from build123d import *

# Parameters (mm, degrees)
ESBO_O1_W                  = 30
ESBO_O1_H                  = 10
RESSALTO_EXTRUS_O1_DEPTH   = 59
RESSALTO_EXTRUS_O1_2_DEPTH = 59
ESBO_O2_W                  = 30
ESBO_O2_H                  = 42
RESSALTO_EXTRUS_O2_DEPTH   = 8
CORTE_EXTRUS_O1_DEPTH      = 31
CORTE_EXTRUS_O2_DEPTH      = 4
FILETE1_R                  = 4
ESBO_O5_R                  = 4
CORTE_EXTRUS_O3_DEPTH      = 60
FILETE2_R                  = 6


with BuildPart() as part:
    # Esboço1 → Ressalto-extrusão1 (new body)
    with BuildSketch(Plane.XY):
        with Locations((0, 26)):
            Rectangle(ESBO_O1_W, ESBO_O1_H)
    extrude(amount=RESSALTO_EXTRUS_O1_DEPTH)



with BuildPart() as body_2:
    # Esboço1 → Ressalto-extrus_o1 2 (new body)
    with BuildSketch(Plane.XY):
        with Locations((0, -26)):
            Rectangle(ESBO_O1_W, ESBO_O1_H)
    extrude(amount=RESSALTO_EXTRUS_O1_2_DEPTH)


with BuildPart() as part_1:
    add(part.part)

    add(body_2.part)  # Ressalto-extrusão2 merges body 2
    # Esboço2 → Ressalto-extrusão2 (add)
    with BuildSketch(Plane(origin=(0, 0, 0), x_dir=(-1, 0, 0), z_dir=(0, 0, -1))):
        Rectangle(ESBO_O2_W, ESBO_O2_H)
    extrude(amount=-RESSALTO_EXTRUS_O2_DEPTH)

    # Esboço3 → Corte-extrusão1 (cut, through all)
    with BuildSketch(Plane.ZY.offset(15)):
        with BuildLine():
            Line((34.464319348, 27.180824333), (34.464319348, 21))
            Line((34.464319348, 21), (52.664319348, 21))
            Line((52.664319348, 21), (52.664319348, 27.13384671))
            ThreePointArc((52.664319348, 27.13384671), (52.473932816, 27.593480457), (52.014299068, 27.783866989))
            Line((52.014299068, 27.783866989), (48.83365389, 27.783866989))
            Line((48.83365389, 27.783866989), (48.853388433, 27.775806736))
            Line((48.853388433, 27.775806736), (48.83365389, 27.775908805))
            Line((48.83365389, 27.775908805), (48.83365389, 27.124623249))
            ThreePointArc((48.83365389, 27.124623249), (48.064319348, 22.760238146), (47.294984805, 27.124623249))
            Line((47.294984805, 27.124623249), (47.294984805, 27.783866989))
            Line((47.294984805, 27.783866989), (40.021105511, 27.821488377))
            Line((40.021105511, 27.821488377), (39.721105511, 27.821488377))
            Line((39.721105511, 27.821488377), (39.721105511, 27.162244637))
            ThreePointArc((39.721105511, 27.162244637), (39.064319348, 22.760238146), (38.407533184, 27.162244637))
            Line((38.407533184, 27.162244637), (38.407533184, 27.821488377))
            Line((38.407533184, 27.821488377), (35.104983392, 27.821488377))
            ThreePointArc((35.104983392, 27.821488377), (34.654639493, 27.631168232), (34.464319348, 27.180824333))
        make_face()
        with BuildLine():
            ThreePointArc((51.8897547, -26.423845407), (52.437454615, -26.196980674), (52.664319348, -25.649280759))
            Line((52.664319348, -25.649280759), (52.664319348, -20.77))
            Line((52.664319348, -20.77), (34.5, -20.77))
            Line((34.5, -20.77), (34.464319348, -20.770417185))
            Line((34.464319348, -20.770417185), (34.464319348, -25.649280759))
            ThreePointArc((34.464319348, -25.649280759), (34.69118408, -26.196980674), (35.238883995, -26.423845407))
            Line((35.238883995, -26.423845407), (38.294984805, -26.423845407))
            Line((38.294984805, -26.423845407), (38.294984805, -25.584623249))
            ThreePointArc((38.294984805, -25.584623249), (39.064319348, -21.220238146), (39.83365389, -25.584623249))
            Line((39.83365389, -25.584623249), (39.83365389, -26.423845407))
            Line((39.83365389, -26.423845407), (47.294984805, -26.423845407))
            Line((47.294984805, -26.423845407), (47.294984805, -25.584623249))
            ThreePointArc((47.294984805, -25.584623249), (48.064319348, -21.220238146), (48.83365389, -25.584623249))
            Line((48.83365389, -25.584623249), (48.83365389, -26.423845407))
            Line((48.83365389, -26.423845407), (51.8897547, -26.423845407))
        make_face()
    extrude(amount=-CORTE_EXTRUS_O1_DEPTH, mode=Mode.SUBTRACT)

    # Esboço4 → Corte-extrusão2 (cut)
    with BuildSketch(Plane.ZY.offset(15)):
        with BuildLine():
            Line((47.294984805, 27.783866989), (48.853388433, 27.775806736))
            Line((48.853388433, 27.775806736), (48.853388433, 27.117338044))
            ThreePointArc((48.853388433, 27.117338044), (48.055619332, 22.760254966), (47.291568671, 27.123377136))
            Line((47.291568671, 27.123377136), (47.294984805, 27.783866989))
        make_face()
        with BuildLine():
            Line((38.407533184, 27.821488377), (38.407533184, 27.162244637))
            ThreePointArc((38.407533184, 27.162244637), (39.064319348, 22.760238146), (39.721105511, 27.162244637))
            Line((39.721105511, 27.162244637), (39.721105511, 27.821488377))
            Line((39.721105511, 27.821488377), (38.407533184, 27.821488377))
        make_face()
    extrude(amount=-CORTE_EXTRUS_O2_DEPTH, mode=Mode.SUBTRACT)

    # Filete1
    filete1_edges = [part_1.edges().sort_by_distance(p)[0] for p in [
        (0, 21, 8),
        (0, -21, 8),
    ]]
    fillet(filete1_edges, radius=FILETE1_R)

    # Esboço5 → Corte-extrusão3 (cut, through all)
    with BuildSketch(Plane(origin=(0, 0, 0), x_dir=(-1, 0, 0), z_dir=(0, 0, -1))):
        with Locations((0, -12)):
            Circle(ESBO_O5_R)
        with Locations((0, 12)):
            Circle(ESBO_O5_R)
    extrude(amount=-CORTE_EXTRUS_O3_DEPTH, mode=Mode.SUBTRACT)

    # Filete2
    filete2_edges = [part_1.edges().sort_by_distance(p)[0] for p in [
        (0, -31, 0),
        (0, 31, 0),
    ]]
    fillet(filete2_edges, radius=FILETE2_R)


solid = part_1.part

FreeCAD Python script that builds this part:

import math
import FreeCAD as App
import Part
import Sketcher


def edges_at(feature, points):
    """Names of the edges that pass closest to the given points."""
    edges = feature.Shape.Edges
    near = lambda p: min(range(len(edges)), key=lambda i: edges[i].distToShape(Part.Vertex(*p))[0])
    return sorted({f"Edge{near(p) + 1}" for p in points})

doc = App.newDocument("Part")
body = doc.addObject("PartDesign::Body", "Body")

# Sketch on XY plane
sketch1 = body.newObject("Sketcher::SketchObject", "Sketch")
sketch1.AttachmentSupport = (doc.getObject("XY_Plane"), [""])
sketch1.MapMode = "FlatFace"
sketch1.addGeometry(Part.LineSegment(App.Vector(-15, 31, 0), App.Vector(-15, 21, 0)), False)
sketch1.addGeometry(Part.LineSegment(App.Vector(-15, 21, 0), App.Vector(15, 21, 0)), False)
sketch1.addGeometry(Part.LineSegment(App.Vector(15, 21, 0), App.Vector(15, 31, 0)), False)
sketch1.addGeometry(Part.LineSegment(App.Vector(15, 31, 0), App.Vector(-15, 31, 0)), False)
sketch1.addConstraint(Sketcher.Constraint("Coincident", 0, 2, 1, 1))
sketch1.addConstraint(Sketcher.Constraint("Coincident", 1, 2, 2, 1))
sketch1.addConstraint(Sketcher.Constraint("Coincident", 2, 2, 3, 1))
sketch1.addConstraint(Sketcher.Constraint("Coincident", 3, 2, 0, 1))
sketch1.addConstraint(Sketcher.Constraint("Vertical", 0))
sketch1.addConstraint(Sketcher.Constraint("Horizontal", 1))
sketch1.addConstraint(Sketcher.Constraint("Vertical", 2))
sketch1.addConstraint(Sketcher.Constraint("Horizontal", 3))
sketch1.addConstraint(Sketcher.Constraint("DistanceX", 1, 1, 1, 2, 30.0))
sketch1.addConstraint(Sketcher.Constraint("DistanceY", 0, 2, 0, 1, 10.0))
sketch1.addConstraint(Sketcher.Constraint("DistanceX", 0, 2, -1, 1, 15.0))
sketch1.addConstraint(Sketcher.Constraint("DistanceY", -1, 1, 0, 2, 21.0))
pad1 = body.newObject("PartDesign::Pad", "Pad")
pad1.Profile = sketch1
pad1.Length = 59
body2 = doc.addObject("PartDesign::Body", "Body001")

# Sketch on XY plane
sketch2 = body2.newObject("Sketcher::SketchObject", "Sketch001")
sketch2.AttachmentSupport = (doc.getObject("XY_Plane001"), [""])
sketch2.MapMode = "FlatFace"
sketch2.addGeometry(Part.LineSegment(App.Vector(-15, -21, 0), App.Vector(-15, -31, 0)), False)
sketch2.addGeometry(Part.LineSegment(App.Vector(-15, -31, 0), App.Vector(15, -31, 0)), False)
sketch2.addGeometry(Part.LineSegment(App.Vector(15, -31, 0), App.Vector(15, -21, 0)), False)
sketch2.addGeometry(Part.LineSegment(App.Vector(15, -21, 0), App.Vector(-15, -21, 0)), False)
sketch2.addConstraint(Sketcher.Constraint("Coincident", 0, 2, 1, 1))
sketch2.addConstraint(Sketcher.Constraint("Coincident", 1, 2, 2, 1))
sketch2.addConstraint(Sketcher.Constraint("Coincident", 2, 2, 3, 1))
sketch2.addConstraint(Sketcher.Constraint("Coincident", 3, 2, 0, 1))
sketch2.addConstraint(Sketcher.Constraint("Vertical", 0))
sketch2.addConstraint(Sketcher.Constraint("Horizontal", 1))
sketch2.addConstraint(Sketcher.Constraint("Vertical", 2))
sketch2.addConstraint(Sketcher.Constraint("Horizontal", 3))
sketch2.addConstraint(Sketcher.Constraint("DistanceX", 1, 1, 1, 2, 30.0))
sketch2.addConstraint(Sketcher.Constraint("DistanceY", 0, 2, 0, 1, 10.0))
sketch2.addConstraint(Sketcher.Constraint("DistanceX", 0, 2, -1, 1, 15.0))
sketch2.addConstraint(Sketcher.Constraint("DistanceY", 0, 2, -1, 1, 31.0))
pad2 = body2.newObject("PartDesign::Pad", "Pad001")
pad2.Profile = sketch2
pad2.Length = 59
body.AllowCompound = True
doc.recompute()

boolean = body.newObject("PartDesign::Boolean", "Boolean")
boolean.Type = "Fuse"
boolean.addObjects([body2])

# Sketch on XY plane
sketch3 = body.newObject("Sketcher::SketchObject", "Sketch002")
sketch3.AttachmentSupport = (doc.getObject("XY_Plane"), [""])
sketch3.MapMode = "FlatFace"
sketch3.addGeometry(Part.LineSegment(App.Vector(15, 21, 0), App.Vector(15, -21, 0)), False)
sketch3.addGeometry(Part.LineSegment(App.Vector(15, -21, 0), App.Vector(-15, -21, 0)), False)
sketch3.addGeometry(Part.LineSegment(App.Vector(-15, -21, 0), App.Vector(-15, 21, 0)), False)
sketch3.addGeometry(Part.LineSegment(App.Vector(-15, 21, 0), App.Vector(15, 21, 0)), False)
sketch3.addConstraint(Sketcher.Constraint("Coincident", 0, 2, 1, 1))
sketch3.addConstraint(Sketcher.Constraint("Coincident", 1, 2, 2, 1))
sketch3.addConstraint(Sketcher.Constraint("Coincident", 2, 2, 3, 1))
sketch3.addConstraint(Sketcher.Constraint("Coincident", 3, 2, 0, 1))
sketch3.addConstraint(Sketcher.Constraint("Vertical", 0))
sketch3.addConstraint(Sketcher.Constraint("Horizontal", 1))
sketch3.addConstraint(Sketcher.Constraint("Vertical", 2))
sketch3.addConstraint(Sketcher.Constraint("Horizontal", 3))
sketch3.addConstraint(Sketcher.Constraint("Symmetric", 0, 2, 2, 2, -1, 1))
sketch3.addConstraint(Sketcher.Constraint("DistanceX", 1, 2, 1, 1, 30.0))
sketch3.addConstraint(Sketcher.Constraint("DistanceY", 0, 2, 0, 1, 42.0))
pad3 = body.newObject("PartDesign::Pad", "Pad002")
pad3.Profile = sketch3
pad3.Length = 8

# Sketch on YZ plane
sketch4 = body.newObject("Sketcher::SketchObject", "Sketch003")
sketch4.AttachmentSupport = (doc.getObject("YZ_Plane"), [""])
sketch4.MapMode = "FlatFace"
sketch4.AttachmentOffset = App.Placement(App.Vector(0, 0, -15), App.Rotation())
sketch4.addGeometry(Part.LineSegment(App.Vector(27.180824, 34.464319, 0), App.Vector(21, 34.464319, 0)), False)
sketch4.addGeometry(Part.LineSegment(App.Vector(21, 34.464319, 0), App.Vector(21, 52.664319, 0)), False)
sketch4.addGeometry(Part.LineSegment(App.Vector(21, 52.664319, 0), App.Vector(27.133847, 52.664319, 0)), False)
sketch4.addGeometry(Part.ArcOfCircle(Part.Circle(App.Vector(27.133847, 52.014299, 0), App.Vector(0, 0, 1), 0.65002), math.radians(0), math.radians(90)), False)
sketch4.addGeometry(Part.LineSegment(App.Vector(27.783867, 52.014299, 0), App.Vector(27.783867, 48.833654, 0)), False)
sketch4.addGeometry(Part.LineSegment(App.Vector(27.783867, 48.833654, 0), App.Vector(27.775807, 48.853388, 0)), False)
sketch4.addGeometry(Part.LineSegment(App.Vector(27.775807, 48.853388, 0), App.Vector(27.775909, 48.833654, 0)), False)
sketch4.addGeometry(Part.LineSegment(App.Vector(27.775909, 48.833654, 0), App.Vector(27.124623, 48.833654, 0)), False)
sketch4.addGeometry(Part.ArcOfCircle(Part.Circle(App.Vector(25.010238, 48.064319, 0), App.Vector(0, 0, 1), 2.25), math.radians(19.994288), math.radians(340.005712)), False)
sketch4.addGeometry(Part.LineSegment(App.Vector(27.124623, 47.294985, 0), App.Vector(27.783867, 47.294985, 0)), False)
sketch4.addGeometry(Part.LineSegment(App.Vector(27.783867, 47.294985, 0), App.Vector(27.821488, 40.021106, 0)), False)
sketch4.addGeometry(Part.LineSegment(App.Vector(27.821488, 40.021106, 0), App.Vector(27.821488, 39.721106, 0)), False)
sketch4.addGeometry(Part.LineSegment(App.Vector(27.821488, 39.721106, 0), App.Vector(27.162245, 39.721106, 0)), False)
sketch4.addGeometry(Part.ArcOfCircle(Part.Circle(App.Vector(25.010238, 39.064319, 0), App.Vector(0, 0, 1), 2.25), math.radians(16.972038), math.radians(343.027962)), False)
sketch4.addGeometry(Part.LineSegment(App.Vector(27.162245, 38.407533, 0), App.Vector(27.821488, 38.407533, 0)), False)
sketch4.addGeometry(Part.LineSegment(App.Vector(27.821488, 38.407533, 0), App.Vector(27.821488, 35.104983, 0)), False)
sketch4.addGeometry(Part.ArcOfCircle(Part.Circle(App.Vector(27.171534, 35.114273, 0), App.Vector(0, 0, 1), 0.65002), math.radians(-89.181122), math.radians(-0.818878)), False)
sketch4.addGeometry(Part.ArcOfCircle(Part.Circle(App.Vector(-25.649281, 51.889755, 0), App.Vector(0, 0, 1), 0.774565), math.radians(90), math.radians(180)), False)
sketch4.addGeometry(Part.LineSegment(App.Vector(-25.649281, 52.664319, 0), App.Vector(-20.77, 52.664319, 0)), False)
sketch4.addGeometry(Part.LineSegment(App.Vector(-20.77, 52.664319, 0), App.Vector(-20.77, 34.5, 0)), False)
sketch4.addGeometry(Part.LineSegment(App.Vector(-20.77, 34.5, 0), App.Vector(-20.770417, 34.464319, 0)), False)
sketch4.addGeometry(Part.LineSegment(App.Vector(-20.770417, 34.464319, 0), App.Vector(-25.649281, 34.464319, 0)), False)
sketch4.addGeometry(Part.ArcOfCircle(Part.Circle(App.Vector(-25.649281, 35.238884, 0), App.Vector(0, 0, 1), 0.774565), math.radians(180), math.radians(270)), False)
sketch4.addGeometry(Part.LineSegment(App.Vector(-26.423845, 35.238884, 0), App.Vector(-26.423845, 38.294985, 0)), False)
sketch4.addGeometry(Part.LineSegment(App.Vector(-26.423845, 38.294985, 0), App.Vector(-25.584623, 38.294985, 0)), False)
sketch4.addGeometry(Part.ArcOfCircle(Part.Circle(App.Vector(-23.470238, 39.064319, 0), App.Vector(0, 0, 1), 2.25), math.radians(-160.005712), math.radians(160.005712)), False)
sketch4.addGeometry(Part.LineSegment(App.Vector(-25.584623, 39.833654, 0), App.Vector(-26.423845, 39.833654, 0)), False)
sketch4.addGeometry(Part.LineSegment(App.Vector(-26.423845, 39.833654, 0), App.Vector(-26.423845, 47.294985, 0)), False)
sketch4.addGeometry(Part.LineSegment(App.Vector(-26.423845, 47.294985, 0), App.Vector(-25.584623, 47.294985, 0)), False)
sketch4.addGeometry(Part.ArcOfCircle(Part.Circle(App.Vector(-23.470238, 48.064319, 0), App.Vector(0, 0, 1), 2.25), math.radians(-160.005712), math.radians(160.005712)), False)
sketch4.addGeometry(Part.LineSegment(App.Vector(-25.584623, 48.833654, 0), App.Vector(-26.423845, 48.833654, 0)), False)
sketch4.addGeometry(Part.LineSegment(App.Vector(-26.423845, 48.833654, 0), App.Vector(-26.423845, 51.889755, 0)), False)
sketch4.addConstraint(Sketcher.Constraint("Coincident", 0, 2, 1, 1))
sketch4.addConstraint(Sketcher.Constraint("Coincident", 1, 2, 2, 1))
sketch4.addConstraint(Sketcher.Constraint("Tangent", 2, 2, 3, 2))
sketch4.addConstraint(Sketcher.Constraint("Tangent", 3, 1, 4, 1))
sketch4.addConstraint(Sketcher.Constraint("Coincident", 4, 2, 5, 1))
sketch4.addConstraint(Sketcher.Constraint("Coincident", 5, 2, 6, 1))
sketch4.addConstraint(Sketcher.Constraint("Coincident", 6, 2, 7, 1))
sketch4.addConstraint(Sketcher.Constraint("Coincident", 7, 2, 8, 1))
sketch4.addConstraint(Sketcher.Constraint("Coincident", 8, 2, 9, 1))
sketch4.addConstraint(Sketcher.Constraint("Coincident", 9, 2, 10, 1))
sketch4.addConstraint(Sketcher.Constraint("Coincident", 10, 2, 11, 1))
sketch4.addConstraint(Sketcher.Constraint("Coincident", 11, 2, 12, 1))
sketch4.addConstraint(Sketcher.Constraint("Coincident", 12, 2, 13, 1))
sketch4.addConstraint(Sketcher.Constraint("Coincident", 13, 2, 14, 1))
sketch4.addConstraint(Sketcher.Constraint("Coincident", 14, 2, 15, 1))
sketch4.addConstraint(Sketcher.Constraint("Coincident", 15, 2, 16, 2))
sketch4.addConstraint(Sketcher.Constraint("Coincident", 16, 1, 0, 1))
sketch4.addConstraint(Sketcher.Constraint("Tangent", 17, 1, 18, 1))
sketch4.addConstraint(Sketcher.Constraint("Coincident", 18, 2, 19, 1))
sketch4.addConstraint(Sketcher.Constraint("Coincident", 19, 2, 20, 1))
sketch4.addConstraint(Sketcher.Constraint("Coincident", 20, 2, 21, 1))
sketch4.addConstraint(Sketcher.Constraint("Tangent", 21, 2, 22, 2))
sketch4.addConstraint(Sketcher.Constraint("Tangent", 22, 1, 23, 1))
sketch4.addConstraint(Sketcher.Constraint("Coincident", 23, 2, 24, 1))
sketch4.addConstraint(Sketcher.Constraint("Coincident", 24, 2, 25, 1))
sketch4.addConstraint(Sketcher.Constraint("Coincident", 25, 2, 26, 1))
sketch4.addConstraint(Sketcher.Constraint("Coincident", 26, 2, 27, 1))
sketch4.addConstraint(Sketcher.Constraint("Coincident", 27, 2, 28, 1))
sketch4.addConstraint(Sketcher.Constraint("Coincident", 28, 2, 29, 1))
sketch4.addConstraint(Sketcher.Constraint("Coincident", 29, 2, 30, 1))
sketch4.addConstraint(Sketcher.Constraint("Coincident", 30, 2, 31, 1))
sketch4.addConstraint(Sketcher.Constraint("Tangent", 31, 2, 17, 2))
sketch4.addConstraint(Sketcher.Constraint("Horizontal", 0))
sketch4.addConstraint(Sketcher.Constraint("Vertical", 1))
sketch4.addConstraint(Sketcher.Constraint("Horizontal", 2))
sketch4.addConstraint(Sketcher.Constraint("Vertical", 4))
sketch4.addConstraint(Sketcher.Constraint("Horizontal", 7))
sketch4.addConstraint(Sketcher.Constraint("Horizontal", 9))
sketch4.addConstraint(Sketcher.Constraint("Vertical", 11))
sketch4.addConstraint(Sketcher.Constraint("Horizontal", 12))
sketch4.addConstraint(Sketcher.Constraint("Horizontal", 14))
sketch4.addConstraint(Sketcher.Constraint("Vertical", 15))
sketch4.addConstraint(Sketcher.Constraint("Horizontal", 18))
sketch4.addConstraint(Sketcher.Constraint("Vertical", 19))
sketch4.addConstraint(Sketcher.Constraint("Horizontal", 21))
sketch4.addConstraint(Sketcher.Constraint("Vertical", 23))
sketch4.addConstraint(Sketcher.Constraint("Horizontal", 24))
sketch4.addConstraint(Sketcher.Constraint("Horizontal", 26))
sketch4.addConstraint(Sketcher.Constraint("Vertical", 27))
sketch4.addConstraint(Sketcher.Constraint("Horizontal", 28))
sketch4.addConstraint(Sketcher.Constraint("Horizontal", 30))
sketch4.addConstraint(Sketcher.Constraint("Vertical", 31))
sketch4.addConstraint(Sketcher.Constraint("Equal", 8, 13))
sketch4.addConstraint(Sketcher.Constraint("Equal", 3, 16))
sketch4.addConstraint(Sketcher.Constraint("Equal", 17, 22))
sketch4.addConstraint(Sketcher.Constraint("Equal", 13, 25))
sketch4.addConstraint(Sketcher.Constraint("Equal", 25, 29))
sketch4.addConstraint(Sketcher.Constraint("Parallel", 6, 10))
sketch4.addConstraint(Sketcher.Constraint("Horizontal", 13, 3, 25, 3))
sketch4.addConstraint(Sketcher.Constraint("Horizontal", 8, 3, 29, 3))
sketch4.addConstraint(Sketcher.Constraint("Horizontal", 4, 2, 6, 2))
sketch4.addConstraint(Sketcher.Constraint("Horizontal", 2, 2, 17, 1))
sketch4.addConstraint(Sketcher.Constraint("Horizontal", 16, 1, 20, 2))
sketch4.addConstraint(Sketcher.Constraint("Horizontal", 9, 2, 27, 2))
sketch4.addConstraint(Sketcher.Constraint("Horizontal", 7, 2, 29, 2))
sketch4.addConstraint(Sketcher.Constraint("Vertical", 8, 3, 13, 3))
sketch4.addConstraint(Sketcher.Constraint("Vertical", 17, 3, 22, 3))
sketch4.addConstraint(Sketcher.Constraint("Vertical", 25, 3, 29, 3))
sketch4.addConstraint(Sketcher.Constraint("Vertical", 7, 2, 8, 2))
sketch4.addConstraint(Sketcher.Constraint("Vertical", 4, 2, 9, 2))
sketch4.addConstraint(Sketcher.Constraint("Vertical", 12, 2, 13, 2))
sketch4.addConstraint(Sketcher.Constraint("Vertical", 11, 2, 14, 2))
sketch4.addConstraint(Sketcher.Constraint("Vertical", 24, 2, 25, 2))
sketch4.addConstraint(Sketcher.Constraint("Vertical", 23, 2, 26, 2))
sketch4.addConstraint(Sketcher.Constraint("Vertical", 25, 2, 28, 2))
sketch4.addConstraint(Sketcher.Constraint("Equal", 9, 12))
sketch4.addConstraint(Sketcher.Constraint("Equal", 23, 31))
sketch4.addConstraint(Sketcher.Constraint("Radius", 8, 2.25))
sketch4.addConstraint(Sketcher.Constraint("DistanceY", 1, 1, 1, 2, 18.2))
sketch4.addConstraint(Sketcher.Constraint("DistanceY", 11, 2, 11, 1, 0.3))
sketch4.addConstraint(Sketcher.Constraint("DistanceX", -1, 1, 0, 2, 21.0))
sketch4.addConstraint(Sketcher.Constraint("DistanceY", 13, 3, 8, 3, 9.0))
sketch4.addConstraint(Sketcher.Constraint("DistanceY", -1, 1, 19, 2, 34.5))
sketch4.addConstraint(Sketcher.Constraint("DistanceX", 18, 2, -1, 1, 20.77))
sketch4.addConstraint(Sketcher.Constraint("Radius", 3, 0.65002))
sketch4.addConstraint(Sketcher.Constraint("DistanceY", 23, 1, 23, 2, 3.056101))
sketch4.addConstraint(Sketcher.Constraint("Radius", 17, 0.774565))
sketch4.addConstraint(Sketcher.Constraint("DistanceX", 18, 1, 18, 2, 4.879281))
sketch4.addConstraint(Sketcher.Constraint("DistanceY", 15, 2, 15, 1, 3.30255))
sketch4.addConstraint(Sketcher.Constraint("DistanceY", 19, 2, 19, 1, 18.164319))
sketch4.addConstraint(Sketcher.Constraint("DistanceX", 0, 2, 0, 1, 6.180824))
sketch4.addConstraint(Sketcher.Constraint("DistanceX", 2, 1, 2, 2, 6.133847))
sketch4.addConstraint(Sketcher.Constraint("DistanceX", 7, 2, 7, 1, 0.651286))
sketch4.addConstraint(Sketcher.Constraint("DistanceX", 9, 1, 9, 2, 0.659244))
sketch4.addConstraint(Sketcher.Constraint("DistanceX", 21, 2, 21, 1, 4.878864))
sketch4.addConstraint(Sketcher.Constraint("DistanceX", 24, 1, 24, 2, 0.839222))
sketch4.addConstraint(Sketcher.Constraint("DistanceY", -1, 1, 5, 2, 48.853388))
sketch4.addConstraint(Sketcher.Constraint("DistanceX", -1, 1, 10, 2, 27.821488))
pocket1 = body.newObject("PartDesign::Pocket", "Pocket")
pocket1.Profile = sketch4
pocket1.Type = "ThroughAll"
pocket1.Reversed = True

# Sketch on YZ plane
sketch5 = body.newObject("Sketcher::SketchObject", "Sketch004")
sketch5.AttachmentSupport = (doc.getObject("YZ_Plane"), [""])
sketch5.MapMode = "FlatFace"
sketch5.AttachmentOffset = App.Placement(App.Vector(0, 0, -15), App.Rotation())
sketch5.addGeometry(Part.LineSegment(App.Vector(27.775807, 48.853388, 0), App.Vector(27.783867, 47.294985, 0)), False)
sketch5.addGeometry(Part.LineSegment(App.Vector(27.783867, 47.294985, 0), App.Vector(27.123377, 47.291569, 0)), False)
sketch5.addGeometry(Part.ArcOfCircle(Part.Circle(App.Vector(25.010238, 48.064319, 0), App.Vector(0, 0, 1), 2.25), math.radians(20.529975), math.radians(339.913114)), False)
sketch5.addGeometry(Part.LineSegment(App.Vector(27.117338, 48.853388, 0), App.Vector(27.775807, 48.853388, 0)), False)
sketch5.addGeometry(Part.LineSegment(App.Vector(27.821488, 38.407533, 0), App.Vector(27.162245, 38.407533, 0)), False)
sketch5.addGeometry(Part.ArcOfCircle(Part.Circle(App.Vector(25.010238, 39.064319, 0), App.Vector(0, 0, 1), 2.25), math.radians(16.972038), math.radians(343.027962)), False)
sketch5.addGeometry(Part.LineSegment(App.Vector(27.162245, 39.721106, 0), App.Vector(27.821488, 39.721106, 0)), False)
sketch5.addGeometry(Part.LineSegment(App.Vector(27.821488, 39.721106, 0), App.Vector(27.821488, 38.407533, 0)), False)
sketch5.addConstraint(Sketcher.Constraint("Coincident", 0, 2, 1, 1))
sketch5.addConstraint(Sketcher.Constraint("Coincident", 1, 2, 2, 2))
sketch5.addConstraint(Sketcher.Constraint("Coincident", 2, 1, 3, 1))
sketch5.addConstraint(Sketcher.Constraint("Coincident", 3, 2, 0, 1))
sketch5.addConstraint(Sketcher.Constraint("Coincident", 4, 2, 5, 2))
sketch5.addConstraint(Sketcher.Constraint("Coincident", 5, 1, 6, 1))
sketch5.addConstraint(Sketcher.Constraint("Coincident", 6, 2, 7, 1))
sketch5.addConstraint(Sketcher.Constraint("Coincident", 7, 2, 4, 1))
sketch5.addConstraint(Sketcher.Constraint("Horizontal", 3))
sketch5.addConstraint(Sketcher.Constraint("Horizontal", 4))
sketch5.addConstraint(Sketcher.Constraint("Horizontal", 6))
sketch5.addConstraint(Sketcher.Constraint("Vertical", 7))
sketch5.addConstraint(Sketcher.Constraint("Equal", 2, 5))
sketch5.addConstraint(Sketcher.Constraint("Perpendicular", 0, 1))
sketch5.addConstraint(Sketcher.Constraint("Vertical", 2, 3, 5, 3))
sketch5.addConstraint(Sketcher.Constraint("Vertical", 4, 2, 5, 1))
sketch5.addConstraint(Sketcher.Constraint("Radius", 2, 2.25))
sketch5.addConstraint(Sketcher.Constraint("DistanceY", 5, 3, 2, 3, 9.0))
sketch5.addConstraint(Sketcher.Constraint("Distance", 1, 0.660499))
sketch5.addConstraint(Sketcher.Constraint("DistanceX", 3, 1, 3, 2, 0.658469))
sketch5.addConstraint(Sketcher.Constraint("DistanceX", 2, 3, 2, 1, 2.1071))
sketch5.addConstraint(Sketcher.Constraint("DistanceX", 4, 2, 4, 1, 0.659244))
sketch5.addConstraint(Sketcher.Constraint("DistanceY", 7, 2, 7, 1, 1.313572))
sketch5.addConstraint(Sketcher.Constraint("DistanceX", -1, 1, 2, 3, 25.010238))
sketch5.addConstraint(Sketcher.Constraint("DistanceY", -1, 1, 2, 3, 48.064319))
sketch5.addConstraint(Sketcher.Constraint("DistanceY", -1, 1, 1, 2, 47.291569))
pocket2 = body.newObject("PartDesign::Pocket", "Pocket001")
pocket2.Profile = sketch5
pocket2.Length = 4
pocket2.Reversed = True
doc.recompute()

fillet = body.newObject("PartDesign::Fillet", "Fillet")
fillet.Base = (pocket2, edges_at(pocket2, [(0, 21, 8), (0, -21, 8)]))
fillet.Radius = 4

# Sketch on XY plane
sketch6 = body.newObject("Sketcher::SketchObject", "Sketch005")
sketch6.AttachmentSupport = (doc.getObject("XY_Plane"), [""])
sketch6.MapMode = "FlatFace"
sketch6.addGeometry(Part.Circle(App.Vector(0, -12, 0), App.Vector(0, 0, 1), 4), False)
sketch6.addGeometry(Part.Circle(App.Vector(0, 12, 0), App.Vector(0, 0, 1), 4), False)
sketch6.addConstraint(Sketcher.Constraint("Equal", 0, 1))
sketch6.addConstraint(Sketcher.Constraint("Symmetric", 0, 3, 1, 3, -1, 1))
sketch6.addConstraint(Sketcher.Constraint("PointOnObject", 0, 3, -2))
sketch6.addConstraint(Sketcher.Constraint("Diameter", 0, 8.0))
sketch6.addConstraint(Sketcher.Constraint("DistanceY", 0, 3, -1, 1, 12.0))
pocket3 = body.newObject("PartDesign::Pocket", "Pocket002")
pocket3.Profile = sketch6
pocket3.Type = "ThroughAll"
pocket3.Reversed = True
doc.recompute()

fillet2 = body.newObject("PartDesign::Fillet", "Fillet001")
fillet2.Base = (pocket3, edges_at(pocket3, [(0, -31, 0), (0, 31, 0)]))
fillet2.Radius = 6

doc.recompute()
